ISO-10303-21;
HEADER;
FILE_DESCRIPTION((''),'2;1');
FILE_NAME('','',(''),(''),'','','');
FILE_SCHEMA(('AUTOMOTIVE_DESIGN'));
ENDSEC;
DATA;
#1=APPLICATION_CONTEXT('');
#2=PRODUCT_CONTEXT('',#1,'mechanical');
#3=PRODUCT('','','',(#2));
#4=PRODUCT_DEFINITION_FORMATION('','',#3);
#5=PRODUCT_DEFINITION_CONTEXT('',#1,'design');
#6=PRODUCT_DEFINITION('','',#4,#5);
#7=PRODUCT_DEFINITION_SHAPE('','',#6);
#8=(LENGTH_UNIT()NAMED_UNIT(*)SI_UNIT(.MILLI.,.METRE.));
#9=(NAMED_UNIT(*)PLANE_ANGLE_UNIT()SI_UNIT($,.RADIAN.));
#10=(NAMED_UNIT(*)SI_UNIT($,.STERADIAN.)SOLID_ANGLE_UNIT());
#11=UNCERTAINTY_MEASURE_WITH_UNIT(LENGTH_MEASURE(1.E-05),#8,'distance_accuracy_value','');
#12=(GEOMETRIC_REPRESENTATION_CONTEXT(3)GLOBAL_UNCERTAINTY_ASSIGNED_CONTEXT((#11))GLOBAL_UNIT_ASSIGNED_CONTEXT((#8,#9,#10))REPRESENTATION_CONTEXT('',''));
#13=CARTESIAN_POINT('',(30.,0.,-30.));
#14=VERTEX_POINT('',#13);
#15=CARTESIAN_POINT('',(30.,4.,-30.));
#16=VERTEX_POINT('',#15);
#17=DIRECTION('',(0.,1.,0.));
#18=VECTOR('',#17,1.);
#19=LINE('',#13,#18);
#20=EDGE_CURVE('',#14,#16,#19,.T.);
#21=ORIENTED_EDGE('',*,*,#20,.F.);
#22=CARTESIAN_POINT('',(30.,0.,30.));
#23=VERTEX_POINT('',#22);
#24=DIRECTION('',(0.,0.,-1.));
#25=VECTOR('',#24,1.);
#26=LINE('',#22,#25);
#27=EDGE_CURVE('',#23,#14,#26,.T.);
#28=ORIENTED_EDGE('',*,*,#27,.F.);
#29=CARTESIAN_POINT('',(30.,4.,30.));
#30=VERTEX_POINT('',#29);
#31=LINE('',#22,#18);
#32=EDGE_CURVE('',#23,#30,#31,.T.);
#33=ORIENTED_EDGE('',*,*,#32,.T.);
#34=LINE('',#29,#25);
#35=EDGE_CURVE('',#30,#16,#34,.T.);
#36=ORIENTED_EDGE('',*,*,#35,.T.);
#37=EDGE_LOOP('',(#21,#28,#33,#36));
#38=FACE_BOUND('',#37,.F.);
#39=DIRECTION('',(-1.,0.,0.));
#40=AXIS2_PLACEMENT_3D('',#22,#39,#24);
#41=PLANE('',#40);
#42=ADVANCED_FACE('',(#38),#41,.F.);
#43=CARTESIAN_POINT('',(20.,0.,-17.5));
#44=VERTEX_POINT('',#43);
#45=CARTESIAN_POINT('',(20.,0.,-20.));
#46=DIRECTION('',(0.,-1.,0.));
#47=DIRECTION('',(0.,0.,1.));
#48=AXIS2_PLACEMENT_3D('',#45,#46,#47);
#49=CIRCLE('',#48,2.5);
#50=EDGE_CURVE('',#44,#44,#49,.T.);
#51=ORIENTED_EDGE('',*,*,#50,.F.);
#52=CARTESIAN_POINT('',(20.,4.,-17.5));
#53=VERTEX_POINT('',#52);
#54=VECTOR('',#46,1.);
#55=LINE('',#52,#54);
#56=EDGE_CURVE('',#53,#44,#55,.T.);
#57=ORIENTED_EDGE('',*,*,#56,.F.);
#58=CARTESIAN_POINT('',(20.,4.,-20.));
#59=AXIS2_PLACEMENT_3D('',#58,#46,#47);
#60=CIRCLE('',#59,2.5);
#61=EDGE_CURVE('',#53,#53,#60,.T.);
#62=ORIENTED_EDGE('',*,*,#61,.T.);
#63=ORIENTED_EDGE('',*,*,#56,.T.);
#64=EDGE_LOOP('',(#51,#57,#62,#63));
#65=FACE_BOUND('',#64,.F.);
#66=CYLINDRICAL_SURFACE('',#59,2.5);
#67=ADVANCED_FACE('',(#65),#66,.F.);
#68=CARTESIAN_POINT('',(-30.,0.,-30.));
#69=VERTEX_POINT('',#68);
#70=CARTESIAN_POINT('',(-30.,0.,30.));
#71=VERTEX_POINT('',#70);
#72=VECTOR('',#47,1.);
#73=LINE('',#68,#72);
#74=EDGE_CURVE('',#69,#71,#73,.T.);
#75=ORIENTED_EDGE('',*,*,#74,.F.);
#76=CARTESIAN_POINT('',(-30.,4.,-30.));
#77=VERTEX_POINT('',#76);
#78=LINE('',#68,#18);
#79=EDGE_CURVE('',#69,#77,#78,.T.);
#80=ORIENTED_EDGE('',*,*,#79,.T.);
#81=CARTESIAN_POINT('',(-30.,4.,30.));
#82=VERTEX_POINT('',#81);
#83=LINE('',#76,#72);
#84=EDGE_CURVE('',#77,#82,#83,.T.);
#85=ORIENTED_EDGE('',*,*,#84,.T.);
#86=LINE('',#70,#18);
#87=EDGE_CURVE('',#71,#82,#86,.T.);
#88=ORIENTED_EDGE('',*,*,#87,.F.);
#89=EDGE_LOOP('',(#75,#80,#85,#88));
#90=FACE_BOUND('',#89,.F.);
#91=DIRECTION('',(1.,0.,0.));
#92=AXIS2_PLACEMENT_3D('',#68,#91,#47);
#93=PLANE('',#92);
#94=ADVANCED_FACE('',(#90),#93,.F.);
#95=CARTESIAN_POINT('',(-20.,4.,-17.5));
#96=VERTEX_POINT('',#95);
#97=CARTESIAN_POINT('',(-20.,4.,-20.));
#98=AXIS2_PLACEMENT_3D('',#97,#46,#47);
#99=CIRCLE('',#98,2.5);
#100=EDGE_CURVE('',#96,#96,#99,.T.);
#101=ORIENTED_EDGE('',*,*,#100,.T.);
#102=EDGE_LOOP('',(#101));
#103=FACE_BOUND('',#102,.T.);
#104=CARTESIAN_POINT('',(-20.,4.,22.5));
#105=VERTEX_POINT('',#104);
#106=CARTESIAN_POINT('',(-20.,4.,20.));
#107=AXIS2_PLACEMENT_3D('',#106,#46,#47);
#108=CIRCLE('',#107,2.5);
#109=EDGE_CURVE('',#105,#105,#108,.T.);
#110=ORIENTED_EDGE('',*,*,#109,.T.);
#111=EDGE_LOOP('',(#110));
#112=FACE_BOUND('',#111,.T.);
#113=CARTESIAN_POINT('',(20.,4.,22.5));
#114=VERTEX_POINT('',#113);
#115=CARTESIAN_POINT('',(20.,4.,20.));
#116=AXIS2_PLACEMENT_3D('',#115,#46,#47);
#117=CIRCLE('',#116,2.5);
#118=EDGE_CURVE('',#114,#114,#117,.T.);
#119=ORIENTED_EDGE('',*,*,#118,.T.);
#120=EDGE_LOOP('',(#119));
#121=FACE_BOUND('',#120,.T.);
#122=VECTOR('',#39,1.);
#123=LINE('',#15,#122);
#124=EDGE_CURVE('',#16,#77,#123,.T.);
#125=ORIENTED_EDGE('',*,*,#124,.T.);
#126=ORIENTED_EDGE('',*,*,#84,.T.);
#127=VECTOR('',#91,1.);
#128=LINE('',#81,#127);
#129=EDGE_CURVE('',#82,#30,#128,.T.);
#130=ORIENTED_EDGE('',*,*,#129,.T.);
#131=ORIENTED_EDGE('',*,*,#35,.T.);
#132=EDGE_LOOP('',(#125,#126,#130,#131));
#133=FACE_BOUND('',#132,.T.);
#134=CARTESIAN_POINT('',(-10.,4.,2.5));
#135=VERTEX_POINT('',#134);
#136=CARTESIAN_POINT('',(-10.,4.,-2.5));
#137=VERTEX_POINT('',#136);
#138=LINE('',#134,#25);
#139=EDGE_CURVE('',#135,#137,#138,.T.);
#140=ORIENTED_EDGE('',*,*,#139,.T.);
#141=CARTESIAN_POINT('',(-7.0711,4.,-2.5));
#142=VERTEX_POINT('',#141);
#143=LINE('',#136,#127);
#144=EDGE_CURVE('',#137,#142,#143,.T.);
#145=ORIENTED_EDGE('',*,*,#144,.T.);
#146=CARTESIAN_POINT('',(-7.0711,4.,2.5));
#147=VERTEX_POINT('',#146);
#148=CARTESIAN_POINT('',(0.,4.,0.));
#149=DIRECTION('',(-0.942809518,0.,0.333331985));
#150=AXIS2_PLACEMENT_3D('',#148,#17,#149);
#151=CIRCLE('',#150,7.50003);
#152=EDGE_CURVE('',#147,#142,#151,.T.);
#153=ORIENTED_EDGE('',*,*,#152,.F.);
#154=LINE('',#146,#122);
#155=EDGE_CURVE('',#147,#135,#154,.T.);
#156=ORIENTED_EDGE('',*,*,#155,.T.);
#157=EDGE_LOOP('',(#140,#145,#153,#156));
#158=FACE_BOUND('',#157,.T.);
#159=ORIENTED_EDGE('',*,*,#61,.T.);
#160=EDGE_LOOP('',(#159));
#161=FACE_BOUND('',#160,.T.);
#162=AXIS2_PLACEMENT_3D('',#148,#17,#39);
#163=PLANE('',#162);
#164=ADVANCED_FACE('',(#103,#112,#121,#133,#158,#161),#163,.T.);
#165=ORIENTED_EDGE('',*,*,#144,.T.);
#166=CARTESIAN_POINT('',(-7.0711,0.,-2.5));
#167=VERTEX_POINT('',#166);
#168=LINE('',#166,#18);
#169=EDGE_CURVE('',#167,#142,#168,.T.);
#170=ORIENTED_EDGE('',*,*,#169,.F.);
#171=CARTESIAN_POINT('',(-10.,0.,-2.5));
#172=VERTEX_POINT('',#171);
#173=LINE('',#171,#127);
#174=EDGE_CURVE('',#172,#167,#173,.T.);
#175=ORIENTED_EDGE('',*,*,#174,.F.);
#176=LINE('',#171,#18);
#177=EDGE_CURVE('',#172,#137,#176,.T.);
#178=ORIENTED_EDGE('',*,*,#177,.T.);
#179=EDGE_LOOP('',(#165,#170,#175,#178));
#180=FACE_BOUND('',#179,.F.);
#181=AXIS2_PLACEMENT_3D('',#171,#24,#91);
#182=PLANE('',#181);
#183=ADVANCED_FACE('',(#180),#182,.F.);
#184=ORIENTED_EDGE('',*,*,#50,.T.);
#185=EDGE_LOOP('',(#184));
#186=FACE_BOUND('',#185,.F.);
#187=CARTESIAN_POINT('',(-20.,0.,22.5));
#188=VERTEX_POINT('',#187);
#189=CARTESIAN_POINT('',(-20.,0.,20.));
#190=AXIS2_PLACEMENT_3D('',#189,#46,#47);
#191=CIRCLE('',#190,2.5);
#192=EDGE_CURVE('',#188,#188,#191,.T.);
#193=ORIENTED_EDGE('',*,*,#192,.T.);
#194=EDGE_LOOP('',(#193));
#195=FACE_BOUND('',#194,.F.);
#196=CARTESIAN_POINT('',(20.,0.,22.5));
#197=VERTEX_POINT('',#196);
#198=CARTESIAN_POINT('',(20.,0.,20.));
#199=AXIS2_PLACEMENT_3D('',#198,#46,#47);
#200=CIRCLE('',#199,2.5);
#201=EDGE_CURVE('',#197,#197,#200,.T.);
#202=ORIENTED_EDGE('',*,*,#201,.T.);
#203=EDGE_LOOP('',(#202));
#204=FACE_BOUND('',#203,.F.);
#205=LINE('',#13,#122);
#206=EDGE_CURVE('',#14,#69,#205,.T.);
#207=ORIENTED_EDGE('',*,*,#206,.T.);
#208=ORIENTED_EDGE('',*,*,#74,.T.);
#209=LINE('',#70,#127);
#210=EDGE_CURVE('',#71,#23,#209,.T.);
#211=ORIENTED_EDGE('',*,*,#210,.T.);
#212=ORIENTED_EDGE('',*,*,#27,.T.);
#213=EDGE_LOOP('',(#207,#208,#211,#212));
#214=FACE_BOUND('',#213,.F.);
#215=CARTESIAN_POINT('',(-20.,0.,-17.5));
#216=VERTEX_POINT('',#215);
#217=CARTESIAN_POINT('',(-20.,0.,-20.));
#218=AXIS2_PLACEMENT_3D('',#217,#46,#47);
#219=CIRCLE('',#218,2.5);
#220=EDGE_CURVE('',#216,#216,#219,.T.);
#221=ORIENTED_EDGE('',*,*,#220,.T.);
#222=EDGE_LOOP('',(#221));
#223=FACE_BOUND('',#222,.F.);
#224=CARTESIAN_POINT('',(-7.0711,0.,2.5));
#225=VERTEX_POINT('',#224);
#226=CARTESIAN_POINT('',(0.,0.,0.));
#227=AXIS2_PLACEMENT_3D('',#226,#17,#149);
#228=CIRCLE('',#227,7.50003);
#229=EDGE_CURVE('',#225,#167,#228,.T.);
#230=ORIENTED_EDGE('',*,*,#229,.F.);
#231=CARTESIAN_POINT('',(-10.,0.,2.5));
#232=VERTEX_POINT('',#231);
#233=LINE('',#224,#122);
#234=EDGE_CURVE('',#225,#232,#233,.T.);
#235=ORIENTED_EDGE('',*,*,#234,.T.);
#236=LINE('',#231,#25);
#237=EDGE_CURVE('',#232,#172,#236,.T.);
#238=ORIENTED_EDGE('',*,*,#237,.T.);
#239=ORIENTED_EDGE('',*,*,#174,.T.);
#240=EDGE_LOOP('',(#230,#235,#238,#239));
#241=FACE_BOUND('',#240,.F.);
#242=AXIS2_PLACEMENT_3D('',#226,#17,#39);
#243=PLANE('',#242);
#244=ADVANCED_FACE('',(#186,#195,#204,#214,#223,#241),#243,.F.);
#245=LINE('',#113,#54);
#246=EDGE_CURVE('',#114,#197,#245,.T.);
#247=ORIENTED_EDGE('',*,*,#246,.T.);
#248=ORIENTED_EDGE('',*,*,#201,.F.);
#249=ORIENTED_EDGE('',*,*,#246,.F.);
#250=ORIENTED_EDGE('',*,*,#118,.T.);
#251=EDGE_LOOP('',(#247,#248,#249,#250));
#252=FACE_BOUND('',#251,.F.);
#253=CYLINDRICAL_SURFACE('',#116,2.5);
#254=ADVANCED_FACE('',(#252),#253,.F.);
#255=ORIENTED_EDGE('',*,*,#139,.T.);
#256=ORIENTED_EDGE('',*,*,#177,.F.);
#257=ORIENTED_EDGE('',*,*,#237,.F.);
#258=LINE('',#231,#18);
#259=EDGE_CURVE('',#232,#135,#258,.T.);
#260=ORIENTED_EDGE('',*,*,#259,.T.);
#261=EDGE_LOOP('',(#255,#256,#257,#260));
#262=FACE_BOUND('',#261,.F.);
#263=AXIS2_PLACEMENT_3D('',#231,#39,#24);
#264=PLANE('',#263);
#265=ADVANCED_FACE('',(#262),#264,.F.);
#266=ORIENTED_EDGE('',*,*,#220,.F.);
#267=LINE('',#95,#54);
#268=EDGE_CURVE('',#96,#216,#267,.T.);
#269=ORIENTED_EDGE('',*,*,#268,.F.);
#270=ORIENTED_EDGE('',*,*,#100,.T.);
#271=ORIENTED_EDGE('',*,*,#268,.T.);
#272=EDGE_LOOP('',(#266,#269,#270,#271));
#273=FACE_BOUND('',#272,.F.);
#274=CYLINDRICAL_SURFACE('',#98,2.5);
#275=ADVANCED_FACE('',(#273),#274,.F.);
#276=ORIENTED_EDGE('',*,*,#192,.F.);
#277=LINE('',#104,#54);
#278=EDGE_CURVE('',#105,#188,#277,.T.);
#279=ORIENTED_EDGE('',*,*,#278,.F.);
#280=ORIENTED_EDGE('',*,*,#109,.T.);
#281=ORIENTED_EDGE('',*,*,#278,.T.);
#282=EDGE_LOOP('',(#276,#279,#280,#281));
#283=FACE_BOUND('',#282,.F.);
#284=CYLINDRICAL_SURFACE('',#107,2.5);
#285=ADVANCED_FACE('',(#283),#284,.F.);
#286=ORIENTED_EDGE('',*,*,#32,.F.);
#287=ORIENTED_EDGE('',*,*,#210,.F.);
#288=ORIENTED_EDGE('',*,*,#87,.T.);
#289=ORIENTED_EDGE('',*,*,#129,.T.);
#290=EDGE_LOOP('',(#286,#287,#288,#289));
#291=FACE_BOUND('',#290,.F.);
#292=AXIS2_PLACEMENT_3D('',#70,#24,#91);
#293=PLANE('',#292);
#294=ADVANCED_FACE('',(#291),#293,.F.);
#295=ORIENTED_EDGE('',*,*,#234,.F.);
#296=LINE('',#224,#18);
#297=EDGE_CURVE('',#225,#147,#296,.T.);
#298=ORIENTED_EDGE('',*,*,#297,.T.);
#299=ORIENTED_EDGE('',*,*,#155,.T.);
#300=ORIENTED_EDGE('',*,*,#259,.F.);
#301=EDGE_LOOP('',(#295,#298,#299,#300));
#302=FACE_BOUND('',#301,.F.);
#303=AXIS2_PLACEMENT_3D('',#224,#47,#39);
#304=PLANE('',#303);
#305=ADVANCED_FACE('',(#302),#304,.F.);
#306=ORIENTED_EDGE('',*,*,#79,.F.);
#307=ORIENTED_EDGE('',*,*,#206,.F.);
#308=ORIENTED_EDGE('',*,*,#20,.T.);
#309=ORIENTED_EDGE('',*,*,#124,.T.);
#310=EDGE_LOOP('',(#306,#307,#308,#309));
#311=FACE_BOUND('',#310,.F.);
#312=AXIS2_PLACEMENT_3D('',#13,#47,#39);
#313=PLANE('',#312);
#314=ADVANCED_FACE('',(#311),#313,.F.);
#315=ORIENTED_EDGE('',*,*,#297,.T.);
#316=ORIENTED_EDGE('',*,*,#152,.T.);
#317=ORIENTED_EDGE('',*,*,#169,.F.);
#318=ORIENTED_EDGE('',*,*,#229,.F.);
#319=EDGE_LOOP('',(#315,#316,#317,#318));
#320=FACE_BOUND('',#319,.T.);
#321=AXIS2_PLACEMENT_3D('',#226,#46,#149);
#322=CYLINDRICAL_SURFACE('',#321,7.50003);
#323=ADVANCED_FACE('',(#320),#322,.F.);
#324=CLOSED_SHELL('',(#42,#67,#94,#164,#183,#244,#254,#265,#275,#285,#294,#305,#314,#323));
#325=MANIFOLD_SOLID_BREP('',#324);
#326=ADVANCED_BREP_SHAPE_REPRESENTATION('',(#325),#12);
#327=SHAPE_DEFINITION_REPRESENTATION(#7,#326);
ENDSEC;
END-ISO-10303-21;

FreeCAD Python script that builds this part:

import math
import FreeCAD as App
import Part
import Sketcher
from FreeCAD import Vector


def add_polygon(sketch, points):
    """Adds a closed chain of lines whose ends are joined by coincident constraints."""
    first, n = sketch.GeometryCount, len(points)
    for a, b in zip(points, points[1:] + points[:1]):
        sketch.addGeometry(Part.LineSegment(App.Vector(*a, 0), App.Vector(*b, 0)), False)
    for i in range(n):
        sketch.addConstraint(Sketcher.Constraint("Coincident", first + i, 2, first + (i + 1) % n, 1))

doc = App.newDocument("Part")
body = doc.addObject("PartDesign::Body", "Body")

# Sketch on XZ plane
sketch1 = doc.addObject("Sketcher::SketchObject", "Sketch")
body.addObject(sketch1)
sketch1.AttachmentSupport = (doc.XZ_Plane, [""])
sketch1.MapMode = "FlatFace"
add_polygon(sketch1, [(-30, -30), (-30, 30), (30, 30), (30, -30)])  # lines 0-3
sketch1.addGeometry(Part.ArcOfCircle(Part.Circle(Vector(0, 0, 0), Vector(0, 0, 1), 7.5), math.radians(-161), math.radians(161)), False)  # 4
sketch1.addGeometry(Part.LineSegment(Vector(-7.1, 2.5, 0), Vector(-10, 2.5, 0)), False)  # 5
sketch1.addGeometry(Part.LineSegment(Vector(-10, 2.5, 0), Vector(-10, -2.5, 0)), False)  # 6
sketch1.addGeometry(Part.LineSegment(Vector(-10, -2.5, 0), Vector(-7.1, -2.5, 0)), False)  # 7
sketch1.addConstraint([
    Sketcher.Constraint("Coincident", 4, 2, 5, 1),
    Sketcher.Constraint("Coincident", 5, 2, 6, 1),
    Sketcher.Constraint("Coincident", 6, 2, 7, 1),
    Sketcher.Constraint("Coincident", 7, 2, 4, 1),
    Sketcher.Constraint("Vertical", 0),
    Sketcher.Constraint("Horizontal", 1),
    Sketcher.Constraint("Vertical", 2),
    Sketcher.Constraint("Horizontal", 3),
    Sketcher.Constraint("Horizontal", 5),
    Sketcher.Constraint("Vertical", 6),
    Sketcher.Constraint("Horizontal", 7),
    Sketcher.Constraint("Coincident", 4, 3, -1, 1),
    Sketcher.Constraint("Symmetric", 0, 2, 2, 2, -1, 1),
    Sketcher.Constraint("Vertical", 4, 2, 7, 2),
    Sketcher.Constraint("Equal", 3, 0),
    Sketcher.Constraint("Radius", 4, 7.5),
    Sketcher.Constraint("DistanceX", 1, 1, 1, 2, 60.0),
    Sketcher.Constraint("DistanceY", 6, 2, 6, 1, 5.0),
    Sketcher.Constraint("DistanceX", 5, 2, -1, 1, 10.0),
])
pad1 = doc.addObject("PartDesign::Pad", "Pad")
body.addObject(pad1)
pad1.Profile = sketch1
pad1.Length = 4
pad1.Reversed = True

# Sketch on XZ plane
sketch2 = doc.addObject("Sketcher::SketchObject", "Sketch001")
body.addObject(sketch2)
sketch2.AttachmentSupport = (doc.XZ_Plane, [""])
sketch2.MapMode = "FlatFace"
sketch2.AttachmentOffset = App.Placement(Vector(0, 0, -4), App.Rotation())
sketch2.addGeometry([
    Part.Circle(Vector(-20, 20, 0), Vector(0, 0, 1), 2.5),
    Part.Circle(Vector(20, 20, 0), Vector(0, 0, 1), 2.5),
    Part.Circle(Vector(20, -20, 0), Vector(0, 0, 1), 2.5),
    Part.Circle(Vector(-20, -20, 0), Vector(0, 0, 1), 2.5),
], False)
sketch2.addConstraint([
    Sketcher.Constraint("Equal", 0, 1),
    Sketcher.Constraint("Equal", 1, 2),
    Sketcher.Constraint("Equal", 2, 3),
    Sketcher.Constraint("Symmetric", 0, 3, 2, 3, -1, 1),
    Sketcher.Constraint("Symmetric", 1, 3, 3, 3, -1, 1),
    Sketcher.Constraint("Symmetric", 0, 3, 1, 3, -2),
    Sketcher.Constraint("Diameter", 0, 5.0),
    Sketcher.Constraint("DistanceX", 0, 3, -1, 1, 20.0),
    Sketcher.Constraint("DistanceY", -1, 1, 0, 3, 20.0),
])
doc.recompute()
hole = doc.addObject("PartDesign::Hole", "Hole")
body.addObject(hole)
hole.Profile = sketch2
hole.ThreadType = "None"
hole.Diameter = 5
hole.DepthType = "ThroughAll"
hole.Reversed = True

doc.recompute()
